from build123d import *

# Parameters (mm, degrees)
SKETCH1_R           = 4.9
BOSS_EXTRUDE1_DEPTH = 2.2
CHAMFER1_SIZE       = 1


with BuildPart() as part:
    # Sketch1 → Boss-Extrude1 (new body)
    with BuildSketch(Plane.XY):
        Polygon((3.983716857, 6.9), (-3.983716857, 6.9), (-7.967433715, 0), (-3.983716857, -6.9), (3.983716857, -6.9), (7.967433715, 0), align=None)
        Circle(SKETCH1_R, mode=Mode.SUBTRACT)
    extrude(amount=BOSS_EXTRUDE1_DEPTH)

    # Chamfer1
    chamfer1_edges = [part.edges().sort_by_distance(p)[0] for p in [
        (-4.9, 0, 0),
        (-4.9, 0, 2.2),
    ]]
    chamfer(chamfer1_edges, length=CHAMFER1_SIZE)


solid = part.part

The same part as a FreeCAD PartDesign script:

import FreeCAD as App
import Part
import Sketcher
Q = App.Units.Quantity


def edges_at(feature, points):
    """Names of the edges that pass closest to the given points."""
    edges = feature.Shape.Edges
    near = lambda p: min(range(len(edges)), key=lambda i: edges[i].distToShape(Part.Vertex(*p))[0])
    return sorted({f"Edge{near(p) + 1}" for p in points})


def add_polygon(sketch, points):
    """Adds a closed chain of lines whose ends are joined by coincident constraints."""
    first, n = sketch.GeometryCount, len(points)
    for a, b in zip(points, points[1:] + points[:1]):
        sketch.addGeometry(Part.LineSegment(App.Vector(*a, 0), App.Vector(*b, 0)), False)
    for i in range(n):
        sketch.addConstraint(Sketcher.Constraint("Coincident", first + i, 2, first + (i + 1) % n, 1))

doc = App.newDocument("Part")
body = doc.addObject("PartDesign::Body", "Body")

sketch1 = doc.addObject("Sketcher::SketchObject", "Sketch")
body.addObject(sketch1)
sketch1.AttachmentSupport = (doc.XY_Plane, [""])
sketch1.MapMode = "FlatFace"
add_polygon(sketch1, [(3.983717, 6.9), (-3.983717, 6.9), (-7.967434, 0), (-3.983717, -6.9), (3.983717, -6.9), (7.967434, 0)])
sketch1.addGeometry(Part.Circle(App.Vector(0, 0, 0), App.Vector(0, 0, 1), 4.9), False)
sketch1.addConstraint([
    Sketcher.Constraint("Horizontal", 0),
    Sketcher.Constraint("Horizontal", 3),
    Sketcher.Constraint("Coincident", 6, 3, -1, 1),
    Sketcher.Constraint("Symmetric", 0, 2, 3, 2, -1, 1),
    Sketcher.Constraint("Symmetric", 1, 2, 4, 2, -1, 1),
    Sketcher.Constraint("PointOnObject", 1, 2, -1),
    Sketcher.Constraint("Parallel", 2, 5),
    Sketcher.Constraint("Vertical", 0, 2, 2, 2),
    Sketcher.Constraint("Diameter", 6, 9.8),
    Sketcher.Constraint("Angle", 1, Q("-120 deg")),
    Sketcher.Constraint("DistanceY", -1, 1, 0, 2, 6.9),
    Sketcher.Constraint("DistanceX", 0, 2, 0, 1, 7.967434),
])
pad1 = doc.addObject("PartDesign::Pad", "Pad")
body.addObject(pad1)
pad1.Profile = sketch1
pad1.Length = 2.2
doc.recompute()

chamfer = doc.addObject("PartDesign::Chamfer", "Chamfer")
body.addObject(chamfer)
chamfer.Base = (pad1, edges_at(pad1, [(-4.9, 0, 0), (-4.9, 0, 2.2)]))
chamfer.Size = 1

doc.recompute()
